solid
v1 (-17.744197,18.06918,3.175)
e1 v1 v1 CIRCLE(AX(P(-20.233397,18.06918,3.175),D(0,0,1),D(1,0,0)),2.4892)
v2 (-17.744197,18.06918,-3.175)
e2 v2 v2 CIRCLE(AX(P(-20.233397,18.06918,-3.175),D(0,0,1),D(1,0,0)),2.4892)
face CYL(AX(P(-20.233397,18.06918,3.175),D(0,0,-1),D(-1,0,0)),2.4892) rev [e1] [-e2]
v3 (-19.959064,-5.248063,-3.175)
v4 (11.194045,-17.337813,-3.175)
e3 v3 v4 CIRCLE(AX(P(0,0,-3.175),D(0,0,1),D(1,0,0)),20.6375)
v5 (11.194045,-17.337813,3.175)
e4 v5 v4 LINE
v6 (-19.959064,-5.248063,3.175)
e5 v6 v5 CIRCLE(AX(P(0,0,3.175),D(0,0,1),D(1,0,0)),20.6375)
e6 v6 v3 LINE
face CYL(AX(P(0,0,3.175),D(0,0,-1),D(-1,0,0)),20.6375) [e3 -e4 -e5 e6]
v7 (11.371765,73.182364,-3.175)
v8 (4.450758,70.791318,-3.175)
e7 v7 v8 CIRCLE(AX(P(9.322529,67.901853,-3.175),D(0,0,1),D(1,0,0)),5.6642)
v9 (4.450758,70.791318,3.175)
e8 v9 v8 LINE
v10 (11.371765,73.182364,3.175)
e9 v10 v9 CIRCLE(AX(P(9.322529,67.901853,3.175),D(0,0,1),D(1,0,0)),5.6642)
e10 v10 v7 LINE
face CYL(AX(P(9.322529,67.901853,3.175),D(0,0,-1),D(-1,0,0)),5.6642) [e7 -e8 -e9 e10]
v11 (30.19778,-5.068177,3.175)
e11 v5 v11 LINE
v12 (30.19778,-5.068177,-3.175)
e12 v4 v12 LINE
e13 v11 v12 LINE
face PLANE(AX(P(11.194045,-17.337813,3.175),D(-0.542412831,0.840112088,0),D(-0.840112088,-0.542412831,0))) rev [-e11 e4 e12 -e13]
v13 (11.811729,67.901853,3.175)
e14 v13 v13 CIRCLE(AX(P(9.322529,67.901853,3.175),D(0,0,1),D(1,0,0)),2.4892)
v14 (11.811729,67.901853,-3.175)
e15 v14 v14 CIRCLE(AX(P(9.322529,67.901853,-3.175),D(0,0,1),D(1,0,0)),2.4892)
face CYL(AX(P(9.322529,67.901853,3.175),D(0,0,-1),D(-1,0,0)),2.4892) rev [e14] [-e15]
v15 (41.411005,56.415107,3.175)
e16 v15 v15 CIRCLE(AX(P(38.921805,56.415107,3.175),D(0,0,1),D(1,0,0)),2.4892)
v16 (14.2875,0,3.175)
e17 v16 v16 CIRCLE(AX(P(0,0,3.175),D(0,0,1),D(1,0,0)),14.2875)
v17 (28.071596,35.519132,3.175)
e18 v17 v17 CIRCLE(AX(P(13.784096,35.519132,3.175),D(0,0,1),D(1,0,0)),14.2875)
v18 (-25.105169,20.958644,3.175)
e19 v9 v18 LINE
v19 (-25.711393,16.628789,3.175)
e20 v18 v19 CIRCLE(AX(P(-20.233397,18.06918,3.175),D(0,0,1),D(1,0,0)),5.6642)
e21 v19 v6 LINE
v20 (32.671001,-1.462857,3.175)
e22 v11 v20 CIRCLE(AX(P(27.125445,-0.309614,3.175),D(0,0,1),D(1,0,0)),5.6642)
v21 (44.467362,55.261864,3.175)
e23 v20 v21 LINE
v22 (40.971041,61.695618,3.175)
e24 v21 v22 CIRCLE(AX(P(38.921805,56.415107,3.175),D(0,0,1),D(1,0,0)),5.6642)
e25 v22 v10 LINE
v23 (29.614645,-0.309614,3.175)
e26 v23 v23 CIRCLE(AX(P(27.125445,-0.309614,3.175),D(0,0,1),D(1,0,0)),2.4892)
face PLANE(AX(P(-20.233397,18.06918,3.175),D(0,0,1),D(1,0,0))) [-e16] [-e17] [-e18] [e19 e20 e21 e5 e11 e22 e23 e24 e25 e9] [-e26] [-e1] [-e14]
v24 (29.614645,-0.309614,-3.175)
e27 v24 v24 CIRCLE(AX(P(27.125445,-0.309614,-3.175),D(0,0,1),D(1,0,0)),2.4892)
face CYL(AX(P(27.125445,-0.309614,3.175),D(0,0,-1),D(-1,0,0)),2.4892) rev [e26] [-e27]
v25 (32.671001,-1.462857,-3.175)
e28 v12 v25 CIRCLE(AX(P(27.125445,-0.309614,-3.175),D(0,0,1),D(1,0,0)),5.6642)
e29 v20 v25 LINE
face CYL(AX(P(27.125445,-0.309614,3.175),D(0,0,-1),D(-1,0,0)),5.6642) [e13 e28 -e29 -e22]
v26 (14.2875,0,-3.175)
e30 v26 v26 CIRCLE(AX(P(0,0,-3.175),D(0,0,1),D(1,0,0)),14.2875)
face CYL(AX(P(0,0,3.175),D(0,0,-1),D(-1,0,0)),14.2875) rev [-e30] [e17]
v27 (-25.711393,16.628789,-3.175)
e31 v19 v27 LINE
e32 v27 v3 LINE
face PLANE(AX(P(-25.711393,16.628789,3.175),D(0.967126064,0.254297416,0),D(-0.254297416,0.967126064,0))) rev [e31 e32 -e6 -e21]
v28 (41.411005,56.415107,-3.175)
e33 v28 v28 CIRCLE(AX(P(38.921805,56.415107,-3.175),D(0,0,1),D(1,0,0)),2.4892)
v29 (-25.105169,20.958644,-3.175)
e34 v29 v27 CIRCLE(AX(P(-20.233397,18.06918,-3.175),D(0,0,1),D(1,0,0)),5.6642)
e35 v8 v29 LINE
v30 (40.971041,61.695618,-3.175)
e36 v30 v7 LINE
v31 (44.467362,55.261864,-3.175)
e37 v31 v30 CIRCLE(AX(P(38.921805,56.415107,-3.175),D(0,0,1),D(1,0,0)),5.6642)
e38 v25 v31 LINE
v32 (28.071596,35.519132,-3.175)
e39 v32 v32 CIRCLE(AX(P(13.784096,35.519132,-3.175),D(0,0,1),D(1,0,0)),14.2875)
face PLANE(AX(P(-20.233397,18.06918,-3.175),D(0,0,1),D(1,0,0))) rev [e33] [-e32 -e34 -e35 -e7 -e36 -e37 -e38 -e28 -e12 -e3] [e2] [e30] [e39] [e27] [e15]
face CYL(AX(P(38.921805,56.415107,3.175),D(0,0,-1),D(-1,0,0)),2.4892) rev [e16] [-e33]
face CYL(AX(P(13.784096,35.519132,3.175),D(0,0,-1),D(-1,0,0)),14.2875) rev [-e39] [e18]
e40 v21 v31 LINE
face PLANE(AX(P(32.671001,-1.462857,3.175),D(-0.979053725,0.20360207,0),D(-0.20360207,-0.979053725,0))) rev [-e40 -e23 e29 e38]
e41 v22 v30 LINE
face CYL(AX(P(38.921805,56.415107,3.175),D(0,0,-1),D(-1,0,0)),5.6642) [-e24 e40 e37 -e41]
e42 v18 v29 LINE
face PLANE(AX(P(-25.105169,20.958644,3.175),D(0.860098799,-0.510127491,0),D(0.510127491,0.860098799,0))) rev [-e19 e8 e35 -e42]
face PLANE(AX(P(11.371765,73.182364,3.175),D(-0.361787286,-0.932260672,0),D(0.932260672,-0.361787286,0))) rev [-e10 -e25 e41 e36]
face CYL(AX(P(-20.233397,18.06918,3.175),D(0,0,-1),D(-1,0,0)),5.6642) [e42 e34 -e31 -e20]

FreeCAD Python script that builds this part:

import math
import FreeCAD as App
import Part
import Sketcher

V = App.Vector
Q = App.Units.Quantity

doc = App.newDocument("Part")
body = doc.addObject("PartDesign::Body", "Body")

# Sketch on XY plane
sketch1 = body.newObject("Sketcher::SketchObject", "Sketch")
sketch1.AttachmentSupport = (doc.getObject("XY_Plane"), [""])
sketch1.MapMode = "FlatFace"
sketch1.addGeometry(Part.LineSegment(V(-25.7, 16.6, 0), V(-20, -5.2, 0)), False)
sketch1.addGeometry(Part.ArcOfCircle(Part.Circle(V(0, 0, 0), V(0, 0, 1), 20.6), math.radians(-165), math.radians(-57)), False)
sketch1.addGeometry(Part.LineSegment(V(11.2, -17.3, 0), V(30.2, -5.1, 0)), False)
sketch1.addGeometry(Part.ArcOfCircle(Part.Circle(V(27.1, -0.3, 0), V(0, 0, 1), 5.7), math.radians(-57), math.radians(-12)), False)
sketch1.addGeometry(Part.LineSegment(V(32.7, -1.5, 0), V(44.5, 55.3, 0)), False)
sketch1.addGeometry(Part.ArcOfCircle(Part.Circle(V(38.9, 56.4, 0), V(0, 0, 1), 5.7), math.radians(-12), math.radians(69)), False)
sketch1.addGeometry(Part.LineSegment(V(41, 61.7, 0), V(11.4, 73.2, 0)), False)
sketch1.addGeometry(Part.ArcOfCircle(Part.Circle(V(9.3, 67.9, 0), V(0, 0, 1), 5.7), math.radians(69), math.radians(149)), False)
sketch1.addGeometry(Part.LineSegment(V(4.5, 70.8, 0), V(-25.1, 21, 0)), False)
sketch1.addGeometry(Part.ArcOfCircle(Part.Circle(V(-20.2, 18.1, 0), V(0, 0, 1), 5.7), math.radians(149), math.radians(195)), False)
sketch1.addGeometry(Part.Circle(V(0, 0, 0), V(0, 0, 1), 14.3), False)
sketch1.addGeometry(Part.Circle(V(-20.2, 18.1, 0), V(0, 0, 1), 2.5), False)
sketch1.addGeometry(Part.Circle(V(27.1, -0.3, 0), V(0, 0, 1), 2.5), False)
sketch1.addGeometry(Part.Circle(V(9.3, 67.9, 0), V(0, 0, 1), 2.5), False)
sketch1.addGeometry(Part.Circle(V(13.8, 35.5, 0), V(0, 0, 1), 14.3), False)
sketch1.addGeometry(Part.Circle(V(38.9, 56.4, 0), V(0, 0, 1), 2.5), False)
sketch1.addConstraint(Sketcher.Constraint("Tangent", 0, 2, 1, 1))
sketch1.addConstraint(Sketcher.Constraint("Tangent", 1, 2, 2, 1))
sketch1.addConstraint(Sketcher.Constraint("Tangent", 2, 2, 3, 1))
sketch1.addConstraint(Sketcher.Constraint("Tangent", 3, 2, 4, 1))
sketch1.addConstraint(Sketcher.Constraint("Tangent", 4, 2, 5, 1))
sketch1.addConstraint(Sketcher.Constraint("Tangent", 5, 2, 6, 1))
sketch1.addConstraint(Sketcher.Constraint("Tangent", 6, 2, 7, 1))
sketch1.addConstraint(Sketcher.Constraint("Tangent", 7, 2, 8, 1))
sketch1.addConstraint(Sketcher.Constraint("Tangent", 8, 2, 9, 1))
sketch1.addConstraint(Sketcher.Constraint("Tangent", 9, 2, 0, 1))
sketch1.addConstraint(Sketcher.Constraint("Coincident", 1, 3, -1, 1))
sketch1.addConstraint(Sketcher.Constraint("Coincident", 10, 3, -1, 1))
sketch1.addConstraint(Sketcher.Constraint("Coincident", 11, 3, 9, 3))
sketch1.addConstraint(Sketcher.Constraint("Coincident", 12, 3, 3, 3))
sketch1.addConstraint(Sketcher.Constraint("Coincident", 13, 3, 7, 3))
sketch1.addConstraint(Sketcher.Constraint("Coincident", 15, 3, 5, 3))
sketch1.addConstraint(Sketcher.Constraint("Equal", 3, 5))
sketch1.addConstraint(Sketcher.Constraint("Equal", 5, 7))
sketch1.addConstraint(Sketcher.Constraint("Equal", 7, 9))
sketch1.addConstraint(Sketcher.Constraint("Equal", 11, 12))
sketch1.addConstraint(Sketcher.Constraint("Equal", 12, 13))
sketch1.addConstraint(Sketcher.Constraint("Equal", 10, 14))
sketch1.addConstraint(Sketcher.Constraint("Equal", 13, 15))
sketch1.addConstraint(Sketcher.Constraint("Equal", 0, 2))
sketch1.addConstraint(Sketcher.Constraint("Equal", 4, 8))
sketch1.addConstraint(Sketcher.Constraint("Diameter", 10, Q("1.125 in")))
sketch1.addConstraint(Sketcher.Constraint("Diameter", 11, Q("0.196 in")))
sketch1.addConstraint(Sketcher.Constraint("Radius", 1, Q("0.8125 in")))
sketch1.addConstraint(Sketcher.Constraint("Radius", 3, Q("0.223 in")))
sketch1.addConstraint(Sketcher.Constraint("Distance", 6, Q("1.25 in")))
sketch1.addConstraint(Sketcher.Constraint("Angle", 6, Q("158.79 deg")))
sketch1.addConstraint(Sketcher.Constraint("DistanceX", -1, 1, 3, 2, Q("32.671001 mm")))
sketch1.addConstraint(Sketcher.Constraint("DistanceX", 1, 2, 3, 3, Q("15.9314 mm")))
sketch1.addConstraint(Sketcher.Constraint("DistanceX", -1, 1, 7, 3, Q("9.322529 mm")))
sketch1.addConstraint(Sketcher.Constraint("DistanceY", -1, 1, 9, 3, Q("18.06918 mm")))
sketch1.addConstraint(Sketcher.Constraint("DistanceY", -1, 1, 14, 3, Q("35.519132 mm")))
sketch1.addConstraint(Sketcher.Constraint("DistanceX", 14, 3, 5, 3, Q("25.13771 mm")))
pad1 = body.newObject("PartDesign::Pad", "Pad")
pad1.Profile = sketch1
pad1.Length = Q("0.25 in")
pad1.Midplane = True

doc.recompute()
